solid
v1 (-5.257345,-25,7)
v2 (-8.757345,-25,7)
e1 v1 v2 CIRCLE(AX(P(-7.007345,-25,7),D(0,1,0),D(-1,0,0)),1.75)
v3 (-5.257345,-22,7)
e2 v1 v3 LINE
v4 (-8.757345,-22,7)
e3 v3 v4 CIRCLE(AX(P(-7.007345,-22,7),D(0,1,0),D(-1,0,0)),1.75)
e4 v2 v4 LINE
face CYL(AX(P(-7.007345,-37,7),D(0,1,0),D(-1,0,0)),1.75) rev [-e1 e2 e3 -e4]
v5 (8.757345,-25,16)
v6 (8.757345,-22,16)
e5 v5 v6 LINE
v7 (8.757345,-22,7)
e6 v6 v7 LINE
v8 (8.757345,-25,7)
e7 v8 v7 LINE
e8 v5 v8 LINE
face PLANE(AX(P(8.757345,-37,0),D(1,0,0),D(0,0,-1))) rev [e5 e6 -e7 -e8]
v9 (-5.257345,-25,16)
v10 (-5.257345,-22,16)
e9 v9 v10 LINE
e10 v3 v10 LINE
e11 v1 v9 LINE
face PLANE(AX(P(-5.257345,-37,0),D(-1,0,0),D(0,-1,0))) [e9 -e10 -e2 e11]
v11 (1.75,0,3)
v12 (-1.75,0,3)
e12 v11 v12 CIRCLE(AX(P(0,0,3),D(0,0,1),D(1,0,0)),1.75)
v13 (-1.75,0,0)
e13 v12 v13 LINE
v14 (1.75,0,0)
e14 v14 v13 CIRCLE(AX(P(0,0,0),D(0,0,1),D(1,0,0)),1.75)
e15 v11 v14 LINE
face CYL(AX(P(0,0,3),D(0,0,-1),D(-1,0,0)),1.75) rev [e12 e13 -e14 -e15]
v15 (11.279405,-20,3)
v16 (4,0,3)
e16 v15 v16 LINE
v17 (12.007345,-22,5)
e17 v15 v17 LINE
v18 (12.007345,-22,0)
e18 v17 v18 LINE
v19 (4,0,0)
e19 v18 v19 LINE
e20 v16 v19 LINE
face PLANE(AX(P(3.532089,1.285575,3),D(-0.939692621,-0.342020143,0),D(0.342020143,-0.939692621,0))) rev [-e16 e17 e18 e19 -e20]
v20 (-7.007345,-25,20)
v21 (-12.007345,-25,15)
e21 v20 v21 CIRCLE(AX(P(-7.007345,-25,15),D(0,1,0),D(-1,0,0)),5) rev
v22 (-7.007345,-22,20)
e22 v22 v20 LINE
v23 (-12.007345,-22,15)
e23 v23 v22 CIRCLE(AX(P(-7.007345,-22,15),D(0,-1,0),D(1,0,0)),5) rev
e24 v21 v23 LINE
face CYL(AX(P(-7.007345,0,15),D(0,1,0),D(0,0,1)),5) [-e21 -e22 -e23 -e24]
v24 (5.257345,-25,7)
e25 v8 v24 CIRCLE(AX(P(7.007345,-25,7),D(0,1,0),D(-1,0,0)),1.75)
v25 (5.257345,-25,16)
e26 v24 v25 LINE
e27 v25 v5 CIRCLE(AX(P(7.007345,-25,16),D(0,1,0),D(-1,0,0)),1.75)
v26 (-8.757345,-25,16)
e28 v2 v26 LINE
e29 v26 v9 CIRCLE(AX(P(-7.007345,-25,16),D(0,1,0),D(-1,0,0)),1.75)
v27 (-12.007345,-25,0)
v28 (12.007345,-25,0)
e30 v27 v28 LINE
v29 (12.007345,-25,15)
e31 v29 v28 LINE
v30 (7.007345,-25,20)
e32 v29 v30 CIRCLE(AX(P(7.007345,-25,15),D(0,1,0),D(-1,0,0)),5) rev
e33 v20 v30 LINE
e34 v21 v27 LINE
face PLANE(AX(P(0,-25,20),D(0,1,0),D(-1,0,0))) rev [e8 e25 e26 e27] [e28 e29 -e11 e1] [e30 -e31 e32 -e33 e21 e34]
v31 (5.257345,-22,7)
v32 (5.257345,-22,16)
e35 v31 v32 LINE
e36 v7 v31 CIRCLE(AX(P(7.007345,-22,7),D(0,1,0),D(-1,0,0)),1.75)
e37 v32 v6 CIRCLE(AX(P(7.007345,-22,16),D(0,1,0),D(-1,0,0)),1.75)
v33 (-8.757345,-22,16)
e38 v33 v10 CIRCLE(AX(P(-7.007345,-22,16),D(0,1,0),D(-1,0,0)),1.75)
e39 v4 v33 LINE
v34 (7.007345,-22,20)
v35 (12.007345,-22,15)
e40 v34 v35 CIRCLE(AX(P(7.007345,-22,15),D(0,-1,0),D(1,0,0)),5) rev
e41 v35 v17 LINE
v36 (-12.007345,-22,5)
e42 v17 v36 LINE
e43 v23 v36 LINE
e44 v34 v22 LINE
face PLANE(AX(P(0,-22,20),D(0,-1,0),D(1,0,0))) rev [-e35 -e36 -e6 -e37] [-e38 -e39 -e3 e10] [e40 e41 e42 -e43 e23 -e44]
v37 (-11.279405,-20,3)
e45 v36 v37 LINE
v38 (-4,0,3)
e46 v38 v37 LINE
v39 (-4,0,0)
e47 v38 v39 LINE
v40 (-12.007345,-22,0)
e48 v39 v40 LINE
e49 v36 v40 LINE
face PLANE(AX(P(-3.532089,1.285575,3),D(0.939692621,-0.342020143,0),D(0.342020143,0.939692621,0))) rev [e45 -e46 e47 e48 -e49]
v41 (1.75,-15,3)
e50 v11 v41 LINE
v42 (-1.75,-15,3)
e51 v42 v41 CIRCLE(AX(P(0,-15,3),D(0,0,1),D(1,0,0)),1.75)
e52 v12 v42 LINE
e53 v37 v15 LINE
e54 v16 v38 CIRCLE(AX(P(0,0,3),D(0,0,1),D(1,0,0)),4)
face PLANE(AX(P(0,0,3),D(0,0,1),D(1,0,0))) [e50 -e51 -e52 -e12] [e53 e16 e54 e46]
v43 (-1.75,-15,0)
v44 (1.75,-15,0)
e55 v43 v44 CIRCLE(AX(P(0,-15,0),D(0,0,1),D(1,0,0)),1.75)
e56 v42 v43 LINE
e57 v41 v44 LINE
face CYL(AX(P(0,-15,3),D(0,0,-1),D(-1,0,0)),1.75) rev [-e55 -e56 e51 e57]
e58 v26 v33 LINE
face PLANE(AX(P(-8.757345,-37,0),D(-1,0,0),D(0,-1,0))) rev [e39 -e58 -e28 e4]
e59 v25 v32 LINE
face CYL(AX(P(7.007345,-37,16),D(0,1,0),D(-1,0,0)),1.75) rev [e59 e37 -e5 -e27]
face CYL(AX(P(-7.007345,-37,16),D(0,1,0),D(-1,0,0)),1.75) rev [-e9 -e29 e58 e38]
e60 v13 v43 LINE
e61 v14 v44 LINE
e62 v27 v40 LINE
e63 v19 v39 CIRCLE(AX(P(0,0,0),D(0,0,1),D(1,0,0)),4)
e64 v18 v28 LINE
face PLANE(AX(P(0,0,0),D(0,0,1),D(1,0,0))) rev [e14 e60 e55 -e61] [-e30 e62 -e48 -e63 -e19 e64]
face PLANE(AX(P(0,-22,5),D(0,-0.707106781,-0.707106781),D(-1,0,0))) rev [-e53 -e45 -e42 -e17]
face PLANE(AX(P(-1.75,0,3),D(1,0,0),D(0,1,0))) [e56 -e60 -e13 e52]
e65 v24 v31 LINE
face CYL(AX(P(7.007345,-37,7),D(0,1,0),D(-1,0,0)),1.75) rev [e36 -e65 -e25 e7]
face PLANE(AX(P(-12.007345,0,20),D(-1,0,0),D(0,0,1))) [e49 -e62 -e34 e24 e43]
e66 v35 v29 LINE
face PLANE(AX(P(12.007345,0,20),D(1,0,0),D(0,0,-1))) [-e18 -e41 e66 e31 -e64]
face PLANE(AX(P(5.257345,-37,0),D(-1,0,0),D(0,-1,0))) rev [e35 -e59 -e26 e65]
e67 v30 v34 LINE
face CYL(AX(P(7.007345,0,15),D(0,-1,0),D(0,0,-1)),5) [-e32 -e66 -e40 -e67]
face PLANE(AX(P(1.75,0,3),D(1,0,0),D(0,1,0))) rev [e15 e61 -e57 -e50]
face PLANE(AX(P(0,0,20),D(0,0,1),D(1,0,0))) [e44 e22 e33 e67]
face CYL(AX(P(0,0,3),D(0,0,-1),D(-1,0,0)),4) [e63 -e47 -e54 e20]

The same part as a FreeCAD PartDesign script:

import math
import FreeCAD as App
import Part
import Sketcher
from FreeCAD import Vector
Q = App.Units.Quantity


def edges_at(feature, points):
    """Names of the edges that pass closest to the given points."""
    edges = feature.Shape.Edges
    near = lambda p: min(range(len(edges)), key=lambda i: edges[i].distToShape(Part.Vertex(*p))[0])
    return sorted({f"Edge{near(p) + 1}" for p in points})


def add_polygon(sketch, points):
    """Adds a closed chain of lines whose ends are joined by coincident constraints."""
    first, n = sketch.GeometryCount, len(points)
    for a, b in zip(points, points[1:] + points[:1]):
        sketch.addGeometry(Part.LineSegment(App.Vector(*a, 0), App.Vector(*b, 0)), False)
    for i in range(n):
        sketch.addConstraint(Sketcher.Constraint("Coincident", first + i, 2, first + (i + 1) % n, 1))

doc = App.newDocument("Part")
body = doc.addObject("PartDesign::Body", "Body")

# Sketch on XY plane
sketch1 = body.newObject("Sketcher::SketchObject", "Sketch")
sketch1.AttachmentSupport = (doc.getObject("XY_Plane"), [""])
sketch1.MapMode = "FlatFace"
sketch1.addGeometry(Part.ArcOfCircle(Part.Circle(Vector(0, 0, 0), Vector(0, 0, 1), 4), math.radians(0), math.radians(180)), False)
sketch1.addGeometry(Part.LineSegment(Vector(-4, 0, 0), Vector(-12, -22, 0)), False)
sketch1.addGeometry(Part.LineSegment(Vector(-12, -22, 0), Vector(12, -22, 0)), False)
sketch1.addGeometry(Part.LineSegment(Vector(12, -22, 0), Vector(4, 0, 0)), False)
sketch1.addGeometry(Part.ArcOfCircle(Part.Circle(Vector(0, -15, 0), Vector(0, 0, 1), 1.8), math.radians(180), math.radians(360)), False)
sketch1.addGeometry(Part.LineSegment(Vector(-1.8, -15, 0), Vector(-1.8, 0, 0)), False)
sketch1.addGeometry(Part.ArcOfCircle(Part.Circle(Vector(0, 0, 0), Vector(0, 0, 1), 1.8), math.radians(0), math.radians(180)), False)
sketch1.addGeometry(Part.LineSegment(Vector(1.8, 0, 0), Vector(1.8, -15, 0)), False)
sketch1.addConstraint(Sketcher.Constraint("Coincident", 0, 2, 1, 1))
sketch1.addConstraint(Sketcher.Constraint("Coincident", 1, 2, 2, 1))
sketch1.addConstraint(Sketcher.Constraint("Coincident", 2, 2, 3, 1))
sketch1.addConstraint(Sketcher.Constraint("Coincident", 3, 2, 0, 1))
sketch1.addConstraint(Sketcher.Constraint("Tangent", 4, 1, 5, 1))
sketch1.addConstraint(Sketcher.Constraint("Tangent", 5, 2, 6, 2))
sketch1.addConstraint(Sketcher.Constraint("Tangent", 6, 1, 7, 1))
sketch1.addConstraint(Sketcher.Constraint("Tangent", 7, 2, 4, 2))
sketch1.addConstraint(Sketcher.Constraint("Horizontal", 2))
sketch1.addConstraint(Sketcher.Constraint("Vertical", 5))
sketch1.addConstraint(Sketcher.Constraint("Vertical", 7))
sketch1.addConstraint(Sketcher.Constraint("Coincident", 0, 3, -1, 1))
sketch1.addConstraint(Sketcher.Constraint("Coincident", 6, 3, -1, 1))
sketch1.addConstraint(Sketcher.Constraint("PointOnObject", 0, 2, -1))
sketch1.addConstraint(Sketcher.Constraint("PointOnObject", 3, 2, -1))
sketch1.addConstraint(Sketcher.Constraint("Equal", 1, 3))
sketch1.addConstraint(Sketcher.Constraint("Radius", 0, 4.0))
sketch1.addConstraint(Sketcher.Constraint("DistanceY", 5, 1, 5, 2, 15.0))
sketch1.addConstraint(Sketcher.Constraint("Angle", 1, Q("-110 deg")))
sketch1.addConstraint(Sketcher.Constraint("Radius", 4, 1.75))
sketch1.addConstraint(Sketcher.Constraint("DistanceY", 1, 2, -1, 1, 22.0))
pad1 = body.newObject("PartDesign::Pad", "Pad")
pad1.Profile = sketch1
pad1.Length = 3

# Sketch on XY plane
sketch2 = body.newObject("Sketcher::SketchObject", "Sketch001")
sketch2.AttachmentSupport = (doc.getObject("XY_Plane"), [""])
sketch2.MapMode = "FlatFace"
add_polygon(sketch2, [(-12, -22), (-12, -25), (12, -25), (12, -22)])  # lines 0-3
sketch2.addConstraint(Sketcher.Constraint("Vertical", 0))
sketch2.addConstraint(Sketcher.Constraint("Horizontal", 1))
sketch2.addConstraint(Sketcher.Constraint("Vertical", 2))
sketch2.addConstraint(Sketcher.Constraint("Horizontal", 3))
sketch2.addConstraint(Sketcher.Constraint("DistanceY", 0, 2, 0, 1, 3.0))
sketch2.addConstraint(Sketcher.Constraint("DistanceY", 0, 2, -1, 1, 25.0))
sketch2.addConstraint(Sketcher.Constraint("DistanceX", 1, 1, 1, 2, 24.01469))
sketch2.addConstraint(Sketcher.Constraint("DistanceX", 0, 2, -1, 1, 12.007345))
pad2 = body.newObject("PartDesign::Pad", "Pad001")
pad2.Profile = sketch2
pad2.Length = 20

# Sketch on XZ plane
sketch3 = body.newObject("Sketcher::SketchObject", "Sketch002")
sketch3.AttachmentSupport = (doc.getObject("XZ_Plane"), [""])
sketch3.MapMode = "FlatFace"
sketch3.AttachmentOffset = App.Placement(Vector(0, 0, 22), App.Rotation())
sketch3.addGeometry(Part.ArcOfCircle(Part.Circle(Vector(-7, 7, 0), Vector(0, 0, 1), 1.8), math.radians(180), math.radians(360)), False)
sketch3.addGeometry(Part.LineSegment(Vector(-8.8, 7, 0), Vector(-8.8, 16, 0)), False)
sketch3.addGeometry(Part.ArcOfCircle(Part.Circle(Vector(-7, 16, 0), Vector(0, 0, 1), 1.8), math.radians(0), math.radians(180)), False)
sketch3.addGeometry(Part.LineSegment(Vector(-5.3, 16, 0), Vector(-5.3, 7, 0)), False)
sketch3.addGeometry(Part.ArcOfCircle(Part.Circle(Vector(7, 16, 0), Vector(0, 0, 1), 1.8), math.radians(0), math.radians(180)), False)
sketch3.addGeometry(Part.LineSegment(Vector(8.8, 16, 0), Vector(8.8, 7, 0)), False)
sketch3.addGeometry(Part.ArcOfCircle(Part.Circle(Vector(7, 7, 0), Vector(0, 0, 1), 1.8), math.radians(180), math.radians(360)), False)
sketch3.addGeometry(Part.LineSegment(Vector(5.3, 7, 0), Vector(5.3, 16, 0)), False)
sketch3.addConstraint(Sketcher.Constraint("Tangent", 0, 1, 1, 1))
sketch3.addConstraint(Sketcher.Constraint("Tangent", 1, 2, 2, 2))
sketch3.addConstraint(Sketcher.Constraint("Tangent", 2, 1, 3, 1))
sketch3.addConstraint(Sketcher.Constraint("Tangent", 3, 2, 0, 2))
sketch3.addConstraint(Sketcher.Constraint("Tangent", 4, 1, 5, 1))
sketch3.addConstraint(Sketcher.Constraint("Tangent", 5, 2, 6, 2))
sketch3.addConstraint(Sketcher.Constraint("Tangent", 6, 1, 7, 1))
sketch3.addConstraint(Sketcher.Constraint("Tangent", 7, 2, 4, 2))
sketch3.addConstraint(Sketcher.Constraint("Vertical", 1))
sketch3.addConstraint(Sketcher.Constraint("Vertical", 3))
sketch3.addConstraint(Sketcher.Constraint("Vertical", 5))
sketch3.addConstraint(Sketcher.Constraint("Vertical", 7))
sketch3.addConstraint(Sketcher.Constraint("Equal", 2, 4))
sketch3.addConstraint(Sketcher.Constraint("Symmetric", 2, 3, 4, 3, -2))
sketch3.addConstraint(Sketcher.Constraint("Horizontal", 0, 3, 6, 3))
sketch3.addConstraint(Sketcher.Constraint("DistanceY", 1, 1, 1, 2, 9.0))
sketch3.addConstraint(Sketcher.Constraint("Radius", 0, 1.75))
sketch3.addConstraint(Sketcher.Constraint("DistanceY", -1, 1, 0, 3, 7.0))
sketch3.addConstraint(Sketcher.Constraint("DistanceX", 2, 3, 4, 3, 14.01469))
pocket1 = body.newObject("PartDesign::Pocket", "Pocket")
pocket1.Profile = sketch3
pocket1.Length = 15
pocket1.Reversed = True
doc.recompute()

fillet = body.newObject("PartDesign::Fillet", "Fillet")
fillet.Base = (pocket1, edges_at(pocket1, [(12.007, -23.5, 20), (-12.007, -23.5, 20)]))
fillet.Radius = 5
doc.recompute()

chamfer = body.newObject("PartDesign::Chamfer", "Chamfer")
chamfer.Base = (fillet, edges_at(fillet, [(0, -22, 3)]))
chamfer.Size = 2

doc.recompute()
